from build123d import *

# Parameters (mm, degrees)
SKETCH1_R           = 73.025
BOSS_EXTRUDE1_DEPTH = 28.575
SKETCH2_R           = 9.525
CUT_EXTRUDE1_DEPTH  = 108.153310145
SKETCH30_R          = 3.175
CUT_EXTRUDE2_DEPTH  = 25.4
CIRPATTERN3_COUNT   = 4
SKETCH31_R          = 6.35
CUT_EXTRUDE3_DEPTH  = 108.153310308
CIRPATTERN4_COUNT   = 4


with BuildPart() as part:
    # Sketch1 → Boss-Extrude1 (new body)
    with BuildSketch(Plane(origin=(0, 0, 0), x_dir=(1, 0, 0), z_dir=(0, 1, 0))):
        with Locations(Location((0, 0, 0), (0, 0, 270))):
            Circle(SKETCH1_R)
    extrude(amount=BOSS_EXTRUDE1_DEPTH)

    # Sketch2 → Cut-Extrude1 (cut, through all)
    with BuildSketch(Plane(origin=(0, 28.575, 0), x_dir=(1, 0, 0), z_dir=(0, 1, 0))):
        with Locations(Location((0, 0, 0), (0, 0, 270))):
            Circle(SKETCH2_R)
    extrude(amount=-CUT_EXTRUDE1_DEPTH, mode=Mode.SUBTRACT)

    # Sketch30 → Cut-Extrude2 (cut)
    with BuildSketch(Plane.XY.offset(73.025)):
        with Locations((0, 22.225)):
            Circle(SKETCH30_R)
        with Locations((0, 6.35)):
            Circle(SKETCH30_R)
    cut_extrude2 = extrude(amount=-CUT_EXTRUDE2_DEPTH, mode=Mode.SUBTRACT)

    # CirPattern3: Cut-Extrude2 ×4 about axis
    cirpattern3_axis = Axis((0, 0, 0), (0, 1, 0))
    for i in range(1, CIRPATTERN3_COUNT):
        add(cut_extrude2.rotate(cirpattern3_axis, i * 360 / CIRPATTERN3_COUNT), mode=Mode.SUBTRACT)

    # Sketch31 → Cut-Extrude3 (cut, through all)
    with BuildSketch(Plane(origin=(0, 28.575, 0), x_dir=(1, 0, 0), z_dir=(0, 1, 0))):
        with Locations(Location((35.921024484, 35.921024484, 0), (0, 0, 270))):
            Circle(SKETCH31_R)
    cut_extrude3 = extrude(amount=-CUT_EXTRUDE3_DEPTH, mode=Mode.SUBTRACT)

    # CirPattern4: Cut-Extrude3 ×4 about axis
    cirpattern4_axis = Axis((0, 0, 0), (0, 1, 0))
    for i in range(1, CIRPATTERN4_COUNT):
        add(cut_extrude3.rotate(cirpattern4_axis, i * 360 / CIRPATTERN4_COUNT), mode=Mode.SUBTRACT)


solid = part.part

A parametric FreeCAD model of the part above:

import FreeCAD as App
import Part
import Sketcher
Q = App.Units.Quantity

doc = App.newDocument("Part")
body = doc.addObject("PartDesign::Body", "Body")

sketch1 = body.newObject("Sketcher::SketchObject", "Sketch")
sketch1.AttachmentSupport = (doc.getObject("XZ_Plane"), [""])
sketch1.MapMode = "FlatFace"
sketch1.addGeometry(Part.Circle(App.Vector(0, 0, 0), App.Vector(0, 0, 1), 73), False)
sketch1.addConstraint([
    Sketcher.Constraint("Coincident", 0, 3, -1, 1),
    Sketcher.Constraint("Diameter", 0, Q("5.75 in")),
])
pad1 = body.newObject("PartDesign::Pad", "Pad")
pad1.Profile = sketch1
pad1.Length = Q("1.125 in")
pad1.Reversed = True

sketch2 = body.newObject("Sketcher::SketchObject", "Sketch001")
sketch2.AttachmentSupport = (doc.getObject("XZ_Plane"), [""])
sketch2.MapMode = "FlatFace"
sketch2.AttachmentOffset = App.Placement(App.Vector(0, 0, -1.125 * 25.4), App.Rotation())
sketch2.addGeometry(Part.Circle(App.Vector(0, 0, 0), App.Vector(0, 0, 1), 10), False)
sketch2.addConstraint([
    Sketcher.Constraint("Coincident", 0, 3, -1, 1),
    Sketcher.Constraint("Diameter", 0, Q("0.75 in")),
])
pocket1 = body.newObject("PartDesign::Pocket", "Pocket")
pocket1.Profile = sketch2
pocket1.Type = "ThroughAll"
pocket1.Reversed = True

sketch3 = body.newObject("Sketcher::SketchObject", "Sketch002")
sketch3.AttachmentSupport = (doc.getObject("XY_Plane"), [""])
sketch3.MapMode = "FlatFace"
sketch3.AttachmentOffset = App.Placement(App.Vector(0, 0, 2.875 * 25.4), App.Rotation())
sketch3.addGeometry([
    Part.Circle(App.Vector(0, 22.2, 0), App.Vector(0, 0, 1), 3.2),
    Part.Circle(App.Vector(0, 6.3, 0), App.Vector(0, 0, 1), 3.2),
], False)
sketch3.addConstraint([
    Sketcher.Constraint("Equal", 0, 1),
    Sketcher.Constraint("PointOnObject", 0, 3, -2),
    Sketcher.Constraint("PointOnObject", 1, 3, -2),
    Sketcher.Constraint("Diameter", 0, Q("0.25 in")),
    Sketcher.Constraint("DistanceY", -1, 1, 1, 3, Q("0.25 in")),
    Sketcher.Constraint("DistanceY", -1, 1, 0, 3, Q("0.875 in")),
])
pocket2 = body.newObject("PartDesign::Pocket", "Pocket001")
pocket2.Profile = sketch3
pocket2.Length = Q("1 in")
doc.recompute()

polarpattern = body.newObject("PartDesign::PolarPattern", "PolarPattern")
polarpattern.Originals = [pocket2]
polarpattern.Axis = (doc.getObject("Y_Axis"), [""])
polarpattern.Angle = 360
polarpattern.Occurrences = 4
body.Tip = polarpattern

sketch4 = body.newObject("Sketcher::SketchObject", "Sketch003")
sketch4.AttachmentSupport = (doc.getObject("XZ_Plane"), [""])
sketch4.MapMode = "FlatFace"
sketch4.AttachmentOffset = App.Placement(App.Vector(0, 0, -1.125 * 25.4), App.Rotation())
sketch4.addGeometry(Part.Circle(App.Vector(36, -36, 0), App.Vector(0, 0, 1), 6), False)
sketch4.addConstraint([
    Sketcher.Constraint("Diameter", 0, Q("0.5 in")),
    Sketcher.Constraint("DistanceX", -1, 1, 0, 3, 35.921024),
    Sketcher.Constraint("DistanceY", 0, 3, -1, 1, 35.921024),
])
pocket3 = body.newObject("PartDesign::Pocket", "Pocket002")
pocket3.Profile = sketch4
pocket3.Type = "ThroughAll"
pocket3.Reversed = True
doc.recompute()

polarpattern2 = body.newObject("PartDesign::PolarPattern", "PolarPattern001")
polarpattern2.Originals = [pocket3]
polarpattern2.Axis = (doc.getObject("Y_Axis"), [""])
polarpattern2.Angle = 360
polarpattern2.Occurrences = 4
body.Tip = polarpattern2

doc.recompute()
